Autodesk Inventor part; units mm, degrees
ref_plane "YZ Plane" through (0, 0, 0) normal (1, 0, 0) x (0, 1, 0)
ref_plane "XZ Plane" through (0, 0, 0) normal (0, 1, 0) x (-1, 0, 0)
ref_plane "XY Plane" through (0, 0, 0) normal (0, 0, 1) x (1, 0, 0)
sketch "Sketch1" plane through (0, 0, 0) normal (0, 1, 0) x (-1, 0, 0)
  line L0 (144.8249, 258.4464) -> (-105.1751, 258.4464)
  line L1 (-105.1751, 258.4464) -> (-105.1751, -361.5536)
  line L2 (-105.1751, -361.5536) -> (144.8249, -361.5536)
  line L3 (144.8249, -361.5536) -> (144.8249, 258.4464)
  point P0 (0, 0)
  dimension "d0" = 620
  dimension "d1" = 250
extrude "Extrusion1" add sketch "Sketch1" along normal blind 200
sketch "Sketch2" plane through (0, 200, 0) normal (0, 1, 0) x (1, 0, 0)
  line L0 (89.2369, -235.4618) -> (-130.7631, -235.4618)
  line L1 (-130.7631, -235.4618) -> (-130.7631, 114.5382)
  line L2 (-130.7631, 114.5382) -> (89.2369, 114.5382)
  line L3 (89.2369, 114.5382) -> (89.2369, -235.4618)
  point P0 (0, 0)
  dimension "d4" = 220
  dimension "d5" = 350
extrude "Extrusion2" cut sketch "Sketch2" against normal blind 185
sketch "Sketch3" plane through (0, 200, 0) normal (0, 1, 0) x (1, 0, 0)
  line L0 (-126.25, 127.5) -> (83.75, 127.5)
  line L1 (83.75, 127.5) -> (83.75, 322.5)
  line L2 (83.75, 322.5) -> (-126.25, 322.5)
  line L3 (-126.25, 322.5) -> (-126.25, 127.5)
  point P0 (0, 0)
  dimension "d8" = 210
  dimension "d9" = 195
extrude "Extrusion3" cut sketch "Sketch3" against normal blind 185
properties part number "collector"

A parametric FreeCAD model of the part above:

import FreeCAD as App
import Part
import Sketcher
Q = App.Units.Quantity

doc = App.newDocument("Part")
body = doc.addObject("PartDesign::Body", "Body")

# Sketch on XZ plane
sketch1 = doc.addObject("Sketcher::SketchObject", "Sketch")
body.addObject(sketch1)
sketch1.AttachmentSupport = (doc.XZ_Plane, [""])
sketch1.MapMode = "FlatFace"
sketch1.addGeometry([
    Part.LineSegment(App.Vector(-144.8249, -361.5536, 0), App.Vector(-144.8249, 258.4464, 0)),
    Part.LineSegment(App.Vector(-144.8249, 258.4464, 0), App.Vector(105.1751, 258.4464, 0)),
    Part.LineSegment(App.Vector(105.1751, 258.4464, 0), App.Vector(105.1751, -361.5536, 0)),
    Part.LineSegment(App.Vector(105.1751, -361.5536, 0), App.Vector(-144.8249, -361.5536, 0)),
], False)
sketch1.addConstraint([
    Sketcher.Constraint("Coincident", 0, 2, 1, 1),
    Sketcher.Constraint("Coincident", 1, 2, 2, 1),
    Sketcher.Constraint("Coincident", 2, 2, 3, 1),
    Sketcher.Constraint("Coincident", 3, 2, 0, 1),
    Sketcher.Constraint("Vertical", 0),
    Sketcher.Constraint("Horizontal", 1),
    Sketcher.Constraint("Vertical", 2),
    Sketcher.Constraint("Horizontal", 3),
    Sketcher.Constraint("DistanceX", 1, 1, 1, 2, Q("250 mm")),
    Sketcher.Constraint("DistanceY", 0, 1, 0, 2, Q("620 mm")),
    Sketcher.Constraint("DistanceX", 0, 2, -1, 1, Q("144.825 mm")),
    Sketcher.Constraint("DistanceY", -1, 1, 0, 2, Q("258.4464 mm")),
])
pad1 = doc.addObject("PartDesign::Pad", "Pad")
body.addObject(pad1)
pad1.Profile = sketch1
pad1.Length = 200
pad1.Reversed = True

# Sketch on XZ plane
sketch2 = doc.addObject("Sketcher::SketchObject", "Sketch001")
body.addObject(sketch2)
sketch2.AttachmentSupport = (doc.XZ_Plane, [""])
sketch2.MapMode = "FlatFace"
sketch2.AttachmentOffset = App.Placement(App.Vector(0, 0, -200), App.Rotation())
sketch2.addGeometry([
    Part.LineSegment(App.Vector(-130.7631, 235.4618, 0), App.Vector(89.2369, 235.4618, 0)),
    Part.LineSegment(App.Vector(89.2369, 235.4618, 0), App.Vector(89.2369, -114.5382, 0)),
    Part.LineSegment(App.Vector(89.2369, -114.5382, 0), App.Vector(-130.7631, -114.5382, 0)),
    Part.LineSegment(App.Vector(-130.7631, -114.5382, 0), App.Vector(-130.7631, 235.4618, 0)),
], False)
sketch2.addConstraint([
    Sketcher.Constraint("Coincident", 0, 2, 1, 1),
    Sketcher.Constraint("Coincident", 1, 2, 2, 1),
    Sketcher.Constraint("Coincident", 2, 2, 3, 1),
    Sketcher.Constraint("Coincident", 3, 2, 0, 1),
    Sketcher.Constraint("Horizontal", 0),
    Sketcher.Constraint("Vertical", 1),
    Sketcher.Constraint("Horizontal", 2),
    Sketcher.Constraint("Vertical", 3),
    Sketcher.Constraint("DistanceX", 0, 1, 0, 2, Q("220 mm")),
    Sketcher.Constraint("DistanceY", 1, 2, 1, 1, Q("350 mm")),
    Sketcher.Constraint("DistanceX", -1, 1, 0, 2, Q("89.237 mm")),
    Sketcher.Constraint("DistanceY", -1, 1, 0, 2, Q("235.4618 mm")),
])
pocket1 = doc.addObject("PartDesign::Pocket", "Pocket")
body.addObject(pocket1)
pocket1.Profile = sketch2
pocket1.Length = 185
pocket1.Reversed = True

# Sketch on XZ plane
sketch3 = doc.addObject("Sketcher::SketchObject", "Sketch002")
body.addObject(sketch3)
sketch3.AttachmentSupport = (doc.XZ_Plane, [""])
sketch3.MapMode = "FlatFace"
sketch3.AttachmentOffset = App.Placement(App.Vector(0, 0, -200), App.Rotation())
sketch3.addGeometry([
    Part.LineSegment(App.Vector(-126.25, -322.5, 0), App.Vector(-126.25, -127.5, 0)),
    Part.LineSegment(App.Vector(-126.25, -127.5, 0), App.Vector(83.75, -127.5, 0)),
    Part.LineSegment(App.Vector(83.75, -127.5, 0), App.Vector(83.75, -322.5, 0)),
    Part.LineSegment(App.Vector(83.75, -322.5, 0), App.Vector(-126.25, -322.5, 0)),
], False)
sketch3.addConstraint([
    Sketcher.Constraint("Coincident", 0, 2, 1, 1),
    Sketcher.Constraint("Coincident", 1, 2, 2, 1),
    Sketcher.Constraint("Coincident", 2, 2, 3, 1),
    Sketcher.Constraint("Coincident", 3, 2, 0, 1),
    Sketcher.Constraint("Vertical", 0),
    Sketcher.Constraint("Horizontal", 1),
    Sketcher.Constraint("Vertical", 2),
    Sketcher.Constraint("Horizontal", 3),
    Sketcher.Constraint("DistanceX", 1, 1, 1, 2, Q("210 mm")),
    Sketcher.Constraint("DistanceY", 0, 1, 0, 2, Q("195 mm")),
    Sketcher.Constraint("DistanceY", 0, 2, -1, 1, Q("127.5 mm")),
    Sketcher.Constraint("DistanceX", 0, 2, -1, 1, Q("126.25 mm")),
])
pocket2 = doc.addObject("PartDesign::Pocket", "Pocket001")
body.addObject(pocket2)
pocket2.Profile = sketch3
pocket2.Length = 185
pocket2.Reversed = True

doc.recompute()
